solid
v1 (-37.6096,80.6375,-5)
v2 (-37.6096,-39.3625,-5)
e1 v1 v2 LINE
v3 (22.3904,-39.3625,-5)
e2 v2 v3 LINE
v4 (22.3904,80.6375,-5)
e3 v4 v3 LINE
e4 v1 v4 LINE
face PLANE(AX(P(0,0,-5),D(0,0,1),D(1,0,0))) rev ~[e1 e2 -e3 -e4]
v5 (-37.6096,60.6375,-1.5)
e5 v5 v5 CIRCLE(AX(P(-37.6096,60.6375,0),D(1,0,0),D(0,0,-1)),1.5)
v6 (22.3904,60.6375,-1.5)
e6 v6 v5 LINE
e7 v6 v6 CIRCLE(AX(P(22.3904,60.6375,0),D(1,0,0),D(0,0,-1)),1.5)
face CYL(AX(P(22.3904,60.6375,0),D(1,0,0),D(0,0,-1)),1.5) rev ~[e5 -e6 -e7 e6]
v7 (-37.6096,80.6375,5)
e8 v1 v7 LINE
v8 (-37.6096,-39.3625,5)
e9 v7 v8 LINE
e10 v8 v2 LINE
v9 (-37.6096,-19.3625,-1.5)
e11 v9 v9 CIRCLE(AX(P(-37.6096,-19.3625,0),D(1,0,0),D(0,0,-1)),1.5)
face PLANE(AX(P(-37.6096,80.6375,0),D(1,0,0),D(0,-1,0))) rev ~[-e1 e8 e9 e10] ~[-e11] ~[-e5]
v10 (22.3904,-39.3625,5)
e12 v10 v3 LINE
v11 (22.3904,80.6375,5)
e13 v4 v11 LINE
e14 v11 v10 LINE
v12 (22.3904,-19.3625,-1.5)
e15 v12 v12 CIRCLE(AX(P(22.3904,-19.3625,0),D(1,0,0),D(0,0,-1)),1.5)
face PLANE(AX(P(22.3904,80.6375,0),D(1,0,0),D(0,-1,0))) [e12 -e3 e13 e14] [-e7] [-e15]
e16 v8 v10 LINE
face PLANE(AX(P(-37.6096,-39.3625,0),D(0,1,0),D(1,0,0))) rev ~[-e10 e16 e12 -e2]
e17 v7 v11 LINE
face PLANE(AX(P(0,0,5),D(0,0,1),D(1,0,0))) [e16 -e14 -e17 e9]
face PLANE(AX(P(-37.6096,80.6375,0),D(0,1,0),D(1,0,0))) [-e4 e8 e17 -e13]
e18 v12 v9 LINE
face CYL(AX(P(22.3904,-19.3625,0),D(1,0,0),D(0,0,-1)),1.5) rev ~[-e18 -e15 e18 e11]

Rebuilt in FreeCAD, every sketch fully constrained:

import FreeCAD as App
import Part
import Sketcher

V = App.Vector
Q = App.Units.Quantity


def add_polygon(sketch, points):
    """Adds a closed chain of lines whose ends are joined by coincident constraints."""
    first, n = sketch.GeometryCount, len(points)
    for a, b in zip(points, points[1:] + points[:1]):
        sketch.addGeometry(Part.LineSegment(App.Vector(*a, 0), App.Vector(*b, 0)), False)
    for i in range(n):
        sketch.addConstraint(Sketcher.Constraint("Coincident", first + i, 2, first + (i + 1) % n, 1))

doc = App.newDocument("Part")
params = doc.addObject("Spreadsheet::Sheet", "Params")
for row, (alias, value) in enumerate([
    ("sketch1_width", "60 mm"),
    ("sketch1_height", "120 mm"),
    ("pad1_length", "10 mm"),
    ("sketch2_diameter", "3 mm"),
    ("sketch3_diameter", "3 mm"),
    ("pocket2_length", "60 mm"),
], start=1):
    params.set(f"A{row}", alias)
    params.set(f"B{row}", "=" + value)
    params.setAlias(f"B{row}", alias)

body = doc.addObject("PartDesign::Body", "Body")

# Sketch on XY plane
sketch1 = body.newObject("Sketcher::SketchObject", "Sketch")
sketch1.AttachmentSupport = (doc.getObject("XY_Plane"), [""])
sketch1.MapMode = "FlatFace"
add_polygon(sketch1, [(22.3904, -39.3625), (22.3904, 80.6375), (-37.6096, 80.6375), (-37.6096, -39.3625)])  # lines 0-3
sketch1.addConstraint(Sketcher.Constraint("Vertical", 0))
sketch1.addConstraint(Sketcher.Constraint("Horizontal", 1))
sketch1.addConstraint(Sketcher.Constraint("Vertical", 2))
sketch1.addConstraint(Sketcher.Constraint("Horizontal", 3))
sketch1.addConstraint(Sketcher.Constraint("DistanceX", 1, 2, 1, 1, Q("60 mm")))
sketch1.addConstraint(Sketcher.Constraint("DistanceY", 0, 1, 0, 2, Q("120 mm")))
sketch1.addConstraint(Sketcher.Constraint("DistanceX", -1, 1, 0, 2, Q("22.3904 mm")))
sketch1.addConstraint(Sketcher.Constraint("DistanceY", -1, 1, 0, 2, Q("80.6375 mm")))
sketch1.setExpression("Constraints[8]", "Params.sketch1_width")
sketch1.setExpression("Constraints[9]", "Params.sketch1_height")
pad1 = body.newObject("PartDesign::Pad", "Pad")
pad1.Profile = sketch1
pad1.setExpression("Length", "Params.pad1_length")
pad1.Midplane = True

# Sketch on YZ plane
sketch2 = body.newObject("Sketcher::SketchObject", "Sketch001")
sketch2.AttachmentSupport = (doc.getObject("YZ_Plane"), [""])
sketch2.MapMode = "FlatFace"
sketch2.AttachmentOffset = App.Placement(V(0, 0, 22.3904), App.Rotation())
sketch2.addGeometry(Part.Circle(V(-19.3625, 0, 0), V(0, 0, 1), 1.5), False)
sketch2.addConstraint(Sketcher.Constraint("PointOnObject", 0, 3, -1))
sketch2.addConstraint(Sketcher.Constraint("Diameter", 0, Q("3 mm")))
sketch2.addConstraint(Sketcher.Constraint("DistanceX", 0, 3, -1, 1, Q("19.3625 mm")))
sketch2.setExpression("Constraints[1]", "Params.sketch2_diameter")
pocket1 = body.newObject("PartDesign::Pocket", "Pocket")
pocket1.Profile = sketch2
pocket1.Type = "ThroughAll"

# Sketch on YZ plane
sketch3 = body.newObject("Sketcher::SketchObject", "Sketch002")
sketch3.AttachmentSupport = (doc.getObject("YZ_Plane"), [""])
sketch3.MapMode = "FlatFace"
sketch3.AttachmentOffset = App.Placement(V(0, 0, 22.3904), App.Rotation())
sketch3.addGeometry(Part.Circle(V(60.6375, 0, 0), V(0, 0, 1), 1.5), False)
sketch3.addConstraint(Sketcher.Constraint("PointOnObject", 0, 3, -1))
sketch3.addConstraint(Sketcher.Constraint("Diameter", 0, Q("3 mm")))
sketch3.addConstraint(Sketcher.Constraint("DistanceX", -1, 1, 0, 3, Q("60.6375 mm")))
sketch3.setExpression("Constraints[1]", "Params.sketch3_diameter")
pocket2 = body.newObject("PartDesign::Pocket", "Pocket001")
pocket2.Profile = sketch3
pocket2.setExpression("Length", "Params.pocket2_length")

doc.recompute()
